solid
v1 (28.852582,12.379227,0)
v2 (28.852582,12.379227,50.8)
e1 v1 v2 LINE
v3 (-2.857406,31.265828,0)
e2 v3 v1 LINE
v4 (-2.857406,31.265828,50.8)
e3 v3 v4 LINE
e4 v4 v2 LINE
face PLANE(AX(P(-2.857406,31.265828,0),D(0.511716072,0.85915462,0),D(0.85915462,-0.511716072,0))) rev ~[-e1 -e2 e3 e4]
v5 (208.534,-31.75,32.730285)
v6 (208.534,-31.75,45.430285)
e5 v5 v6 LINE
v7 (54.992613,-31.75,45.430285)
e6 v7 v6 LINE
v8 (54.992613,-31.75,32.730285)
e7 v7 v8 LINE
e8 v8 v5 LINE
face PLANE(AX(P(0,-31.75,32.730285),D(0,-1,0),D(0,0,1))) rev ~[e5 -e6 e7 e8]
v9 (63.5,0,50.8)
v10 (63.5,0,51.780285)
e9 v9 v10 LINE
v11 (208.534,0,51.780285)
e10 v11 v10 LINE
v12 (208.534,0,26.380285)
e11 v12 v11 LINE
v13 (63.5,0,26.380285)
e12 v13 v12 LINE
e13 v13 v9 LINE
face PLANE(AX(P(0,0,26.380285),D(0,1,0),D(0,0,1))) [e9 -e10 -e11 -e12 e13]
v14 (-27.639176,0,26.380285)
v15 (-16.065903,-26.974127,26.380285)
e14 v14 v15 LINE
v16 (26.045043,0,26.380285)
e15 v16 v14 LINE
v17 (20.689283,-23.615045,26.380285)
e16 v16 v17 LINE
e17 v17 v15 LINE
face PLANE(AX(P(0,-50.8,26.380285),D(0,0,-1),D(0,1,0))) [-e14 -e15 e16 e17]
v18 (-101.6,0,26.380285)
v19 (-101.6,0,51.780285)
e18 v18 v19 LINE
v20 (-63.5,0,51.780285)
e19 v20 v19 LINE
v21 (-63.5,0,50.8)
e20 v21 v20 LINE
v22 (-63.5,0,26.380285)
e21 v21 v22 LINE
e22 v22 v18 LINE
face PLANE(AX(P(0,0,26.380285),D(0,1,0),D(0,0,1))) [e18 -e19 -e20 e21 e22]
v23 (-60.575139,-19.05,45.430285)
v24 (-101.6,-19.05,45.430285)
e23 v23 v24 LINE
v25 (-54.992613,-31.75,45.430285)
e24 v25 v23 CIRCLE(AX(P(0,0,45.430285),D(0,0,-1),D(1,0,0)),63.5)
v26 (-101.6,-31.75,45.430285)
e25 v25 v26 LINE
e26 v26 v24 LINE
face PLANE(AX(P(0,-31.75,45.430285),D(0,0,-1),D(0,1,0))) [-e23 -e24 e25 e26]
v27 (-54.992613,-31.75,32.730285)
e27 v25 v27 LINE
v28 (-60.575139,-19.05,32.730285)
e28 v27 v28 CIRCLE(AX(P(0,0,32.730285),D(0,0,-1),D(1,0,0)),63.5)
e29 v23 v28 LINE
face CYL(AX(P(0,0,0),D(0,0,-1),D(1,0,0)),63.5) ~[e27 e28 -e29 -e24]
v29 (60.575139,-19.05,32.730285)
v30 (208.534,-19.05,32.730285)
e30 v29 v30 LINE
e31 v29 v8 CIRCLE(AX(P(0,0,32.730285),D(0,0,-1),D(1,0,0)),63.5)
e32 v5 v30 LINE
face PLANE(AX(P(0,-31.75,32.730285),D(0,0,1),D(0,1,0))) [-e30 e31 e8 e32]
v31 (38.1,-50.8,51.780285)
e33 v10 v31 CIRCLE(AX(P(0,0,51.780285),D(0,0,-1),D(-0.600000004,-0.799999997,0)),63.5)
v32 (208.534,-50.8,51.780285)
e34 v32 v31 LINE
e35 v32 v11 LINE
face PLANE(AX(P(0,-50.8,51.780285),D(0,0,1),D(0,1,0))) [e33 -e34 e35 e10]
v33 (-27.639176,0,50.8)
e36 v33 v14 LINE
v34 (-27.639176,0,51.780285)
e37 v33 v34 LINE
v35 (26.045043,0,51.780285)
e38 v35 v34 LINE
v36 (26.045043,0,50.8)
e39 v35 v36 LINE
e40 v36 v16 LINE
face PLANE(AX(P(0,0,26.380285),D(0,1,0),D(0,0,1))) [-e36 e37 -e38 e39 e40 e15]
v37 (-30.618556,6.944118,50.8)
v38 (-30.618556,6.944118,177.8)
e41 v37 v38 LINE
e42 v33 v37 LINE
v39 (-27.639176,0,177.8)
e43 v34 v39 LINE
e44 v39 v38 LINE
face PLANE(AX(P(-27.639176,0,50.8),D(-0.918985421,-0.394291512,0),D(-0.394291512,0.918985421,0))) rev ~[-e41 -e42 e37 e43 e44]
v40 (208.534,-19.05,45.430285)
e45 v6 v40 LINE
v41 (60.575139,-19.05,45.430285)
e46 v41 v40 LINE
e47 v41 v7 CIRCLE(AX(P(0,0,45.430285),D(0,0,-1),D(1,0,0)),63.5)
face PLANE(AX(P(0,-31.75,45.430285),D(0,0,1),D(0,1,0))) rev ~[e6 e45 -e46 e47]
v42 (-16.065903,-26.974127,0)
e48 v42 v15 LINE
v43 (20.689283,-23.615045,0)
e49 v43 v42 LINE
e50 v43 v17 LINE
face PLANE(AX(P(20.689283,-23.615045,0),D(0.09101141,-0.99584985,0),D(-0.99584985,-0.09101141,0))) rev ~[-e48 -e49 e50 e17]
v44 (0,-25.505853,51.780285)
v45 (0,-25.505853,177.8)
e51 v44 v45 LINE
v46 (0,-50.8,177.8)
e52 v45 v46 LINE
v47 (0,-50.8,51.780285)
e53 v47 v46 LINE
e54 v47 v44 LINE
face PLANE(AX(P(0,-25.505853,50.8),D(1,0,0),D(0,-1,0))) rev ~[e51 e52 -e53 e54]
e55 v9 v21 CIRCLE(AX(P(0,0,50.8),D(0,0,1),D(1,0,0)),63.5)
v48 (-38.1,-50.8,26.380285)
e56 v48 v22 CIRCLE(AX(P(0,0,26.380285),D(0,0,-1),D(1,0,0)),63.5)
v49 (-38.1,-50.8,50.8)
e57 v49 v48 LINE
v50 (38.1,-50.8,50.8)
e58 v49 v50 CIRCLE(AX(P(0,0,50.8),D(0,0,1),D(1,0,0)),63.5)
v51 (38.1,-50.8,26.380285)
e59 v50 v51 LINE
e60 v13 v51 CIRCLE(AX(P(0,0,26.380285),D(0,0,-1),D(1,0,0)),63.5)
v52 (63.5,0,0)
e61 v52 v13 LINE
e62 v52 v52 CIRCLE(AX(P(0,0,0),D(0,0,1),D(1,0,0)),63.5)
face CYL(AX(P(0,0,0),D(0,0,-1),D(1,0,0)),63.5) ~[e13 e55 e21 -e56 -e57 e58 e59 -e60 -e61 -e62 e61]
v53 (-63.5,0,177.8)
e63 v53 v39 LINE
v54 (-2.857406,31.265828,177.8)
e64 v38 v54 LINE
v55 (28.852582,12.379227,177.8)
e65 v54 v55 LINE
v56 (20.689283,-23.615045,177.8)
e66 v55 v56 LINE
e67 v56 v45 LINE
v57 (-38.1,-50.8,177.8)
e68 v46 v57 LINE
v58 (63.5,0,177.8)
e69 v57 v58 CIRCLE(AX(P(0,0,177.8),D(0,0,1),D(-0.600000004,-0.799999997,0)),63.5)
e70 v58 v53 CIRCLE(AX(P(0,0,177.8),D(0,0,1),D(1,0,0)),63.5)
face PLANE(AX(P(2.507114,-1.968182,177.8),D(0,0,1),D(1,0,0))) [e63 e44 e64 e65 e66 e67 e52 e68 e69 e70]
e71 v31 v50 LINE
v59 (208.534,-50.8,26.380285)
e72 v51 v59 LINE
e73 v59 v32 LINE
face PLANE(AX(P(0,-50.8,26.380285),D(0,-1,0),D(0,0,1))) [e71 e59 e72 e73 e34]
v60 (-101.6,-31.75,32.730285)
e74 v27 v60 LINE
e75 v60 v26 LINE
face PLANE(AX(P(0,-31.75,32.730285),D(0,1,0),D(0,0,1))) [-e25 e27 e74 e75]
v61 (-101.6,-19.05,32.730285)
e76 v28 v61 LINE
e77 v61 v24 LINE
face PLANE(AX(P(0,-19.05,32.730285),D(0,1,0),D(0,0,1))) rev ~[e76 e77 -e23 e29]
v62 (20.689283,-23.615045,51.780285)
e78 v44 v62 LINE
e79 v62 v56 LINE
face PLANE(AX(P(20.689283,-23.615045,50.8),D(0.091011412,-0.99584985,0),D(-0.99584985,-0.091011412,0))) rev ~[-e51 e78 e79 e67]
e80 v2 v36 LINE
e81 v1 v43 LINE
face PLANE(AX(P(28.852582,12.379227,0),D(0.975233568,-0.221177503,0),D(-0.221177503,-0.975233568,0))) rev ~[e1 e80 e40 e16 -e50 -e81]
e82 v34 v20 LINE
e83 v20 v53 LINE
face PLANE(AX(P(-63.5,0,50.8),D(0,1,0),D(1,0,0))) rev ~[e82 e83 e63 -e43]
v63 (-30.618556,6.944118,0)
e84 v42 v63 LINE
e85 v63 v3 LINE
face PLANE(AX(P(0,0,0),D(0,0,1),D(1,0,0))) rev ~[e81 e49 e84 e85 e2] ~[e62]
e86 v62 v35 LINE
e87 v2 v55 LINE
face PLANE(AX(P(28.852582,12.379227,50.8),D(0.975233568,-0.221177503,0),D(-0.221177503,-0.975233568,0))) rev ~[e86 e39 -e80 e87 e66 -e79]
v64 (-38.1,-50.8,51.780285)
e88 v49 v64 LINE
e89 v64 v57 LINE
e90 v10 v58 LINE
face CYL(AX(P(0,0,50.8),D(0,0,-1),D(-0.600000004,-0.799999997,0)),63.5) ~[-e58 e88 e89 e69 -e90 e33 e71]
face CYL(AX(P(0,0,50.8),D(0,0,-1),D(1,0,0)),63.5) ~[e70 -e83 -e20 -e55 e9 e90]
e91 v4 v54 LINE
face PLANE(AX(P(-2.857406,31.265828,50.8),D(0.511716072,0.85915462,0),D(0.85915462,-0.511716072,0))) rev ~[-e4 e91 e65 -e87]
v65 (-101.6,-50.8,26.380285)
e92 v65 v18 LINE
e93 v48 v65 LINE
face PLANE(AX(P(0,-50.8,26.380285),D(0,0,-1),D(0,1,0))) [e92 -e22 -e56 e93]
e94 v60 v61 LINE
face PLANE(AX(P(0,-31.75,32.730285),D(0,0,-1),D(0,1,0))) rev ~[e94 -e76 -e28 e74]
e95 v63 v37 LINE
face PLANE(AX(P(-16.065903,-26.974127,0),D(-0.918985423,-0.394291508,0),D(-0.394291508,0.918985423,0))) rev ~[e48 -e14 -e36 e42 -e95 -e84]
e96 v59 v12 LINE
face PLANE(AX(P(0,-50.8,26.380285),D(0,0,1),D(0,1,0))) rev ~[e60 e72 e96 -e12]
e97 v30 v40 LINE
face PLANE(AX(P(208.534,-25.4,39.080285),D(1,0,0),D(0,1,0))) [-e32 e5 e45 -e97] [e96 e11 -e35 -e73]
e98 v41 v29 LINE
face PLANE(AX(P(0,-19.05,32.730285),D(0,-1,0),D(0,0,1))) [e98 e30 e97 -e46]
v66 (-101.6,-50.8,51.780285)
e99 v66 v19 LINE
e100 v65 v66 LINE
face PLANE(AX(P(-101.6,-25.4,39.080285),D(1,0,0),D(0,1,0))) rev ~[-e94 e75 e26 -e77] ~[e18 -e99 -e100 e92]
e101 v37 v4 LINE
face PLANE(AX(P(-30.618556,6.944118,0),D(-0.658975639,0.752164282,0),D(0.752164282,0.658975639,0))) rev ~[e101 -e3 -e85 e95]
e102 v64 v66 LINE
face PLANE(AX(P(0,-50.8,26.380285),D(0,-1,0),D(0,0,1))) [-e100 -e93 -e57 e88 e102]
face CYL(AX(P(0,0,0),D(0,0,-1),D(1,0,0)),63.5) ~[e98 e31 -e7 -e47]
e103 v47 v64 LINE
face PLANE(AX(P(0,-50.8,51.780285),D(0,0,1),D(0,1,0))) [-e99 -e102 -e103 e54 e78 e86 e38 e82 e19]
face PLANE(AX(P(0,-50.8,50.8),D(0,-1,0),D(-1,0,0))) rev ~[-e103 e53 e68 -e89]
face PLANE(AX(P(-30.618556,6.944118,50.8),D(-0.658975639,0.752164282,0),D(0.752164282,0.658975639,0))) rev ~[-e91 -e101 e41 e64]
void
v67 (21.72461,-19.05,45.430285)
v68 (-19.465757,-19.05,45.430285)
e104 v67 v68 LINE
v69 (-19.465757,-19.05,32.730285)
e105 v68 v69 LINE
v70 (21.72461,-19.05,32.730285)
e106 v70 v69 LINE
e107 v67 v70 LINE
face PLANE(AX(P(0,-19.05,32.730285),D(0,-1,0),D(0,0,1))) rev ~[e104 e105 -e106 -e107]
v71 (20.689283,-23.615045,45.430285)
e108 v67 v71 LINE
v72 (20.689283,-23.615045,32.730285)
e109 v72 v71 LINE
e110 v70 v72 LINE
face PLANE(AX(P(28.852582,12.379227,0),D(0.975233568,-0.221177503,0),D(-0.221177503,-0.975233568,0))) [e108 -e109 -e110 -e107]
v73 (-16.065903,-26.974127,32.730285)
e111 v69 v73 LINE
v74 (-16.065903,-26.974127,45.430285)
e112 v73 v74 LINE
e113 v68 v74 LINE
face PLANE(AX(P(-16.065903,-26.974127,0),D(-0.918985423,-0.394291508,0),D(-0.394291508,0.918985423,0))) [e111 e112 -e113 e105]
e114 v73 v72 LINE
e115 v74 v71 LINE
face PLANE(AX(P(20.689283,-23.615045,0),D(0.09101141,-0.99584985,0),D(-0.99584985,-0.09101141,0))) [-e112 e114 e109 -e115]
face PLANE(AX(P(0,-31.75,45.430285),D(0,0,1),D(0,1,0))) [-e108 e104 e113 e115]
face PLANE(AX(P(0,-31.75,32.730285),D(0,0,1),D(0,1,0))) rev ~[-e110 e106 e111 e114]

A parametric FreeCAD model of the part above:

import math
import FreeCAD as App
import Part
import Sketcher

V = App.Vector
Q = App.Units.Quantity


def add_polygon(sketch, points):
    """Adds a closed chain of lines whose ends are joined by coincident constraints."""
    first, n = sketch.GeometryCount, len(points)
    for a, b in zip(points, points[1:] + points[:1]):
        sketch.addGeometry(Part.LineSegment(App.Vector(*a, 0), App.Vector(*b, 0)), False)
    for i in range(n):
        sketch.addConstraint(Sketcher.Constraint("Coincident", first + i, 2, first + (i + 1) % n, 1))

doc = App.newDocument("Part")
body = doc.addObject("PartDesign::Body", "Body")

# Sketch on XY plane
sketch1 = body.newObject("Sketcher::SketchObject", "Sketch")
sketch1.AttachmentSupport = (doc.getObject("XY_Plane"), [""])
sketch1.MapMode = "FlatFace"
sketch1.addGeometry(Part.Circle(V(0, 0, 0), V(0, 0, 1), 63.5), False)  # 0
add_polygon(sketch1, [(20.689283, -23.615045), (-16.065903, -26.974127), (-30.618556, 6.944118), (-2.857406, 31.265828), (28.852582, 12.379227)])  # lines 1-5
sketch1.addConstraint(Sketcher.Constraint("Coincident", 0, 3, -1, 1))
sketch1.addConstraint(Sketcher.Constraint("Equal", 1, 2))
sketch1.addConstraint(Sketcher.Constraint("Equal", 2, 3))
sketch1.addConstraint(Sketcher.Constraint("Equal", 3, 4))
sketch1.addConstraint(Sketcher.Constraint("Equal", 4, 5))
sketch1.addConstraint(Sketcher.Constraint("Diameter", 0, Q("5 in")))
sketch1.addConstraint(Sketcher.Constraint("DistanceY", 4, 2, 3, 2, 18.886601))
sketch1.addConstraint(Sketcher.Constraint("DistanceX", 5, 2, 4, 2, 8.163299))
sketch1.addConstraint(Sketcher.Constraint("Distance", 1, 36.908361))
sketch1.addConstraint(Sketcher.Constraint("DistanceX", 2, 2, 3, 2, 27.76115))
sketch1.addConstraint(Sketcher.Constraint("DistanceX", 1, 2, -1, 1, 16.065903))
sketch1.addConstraint(Sketcher.Constraint("DistanceY", 1, 2, -1, 1, 26.974127))
pad1 = body.newObject("PartDesign::Pad", "Pad")
pad1.Profile = sketch1
pad1.Length = Q("2 in")

# Sketch on YZ plane
sketch2 = body.newObject("Sketcher::SketchObject", "Sketch001")
sketch2.AttachmentSupport = (doc.getObject("YZ_Plane"), [""])
sketch2.MapMode = "FlatFace"
add_polygon(sketch2, [(-50.8, 51.780285), (-50.8, 26.380285), (0, 26.380285), (0, 51.780285)])  # lines 0-3
add_polygon(sketch2, [(-19.05, 32.730285), (-31.75, 32.730285), (-31.75, 45.430285), (-19.05, 45.430285)])  # lines 4-7
sketch2.addConstraint(Sketcher.Constraint("Vertical", 0))
sketch2.addConstraint(Sketcher.Constraint("Horizontal", 1))
sketch2.addConstraint(Sketcher.Constraint("Vertical", 2))
sketch2.addConstraint(Sketcher.Constraint("Horizontal", 3))
sketch2.addConstraint(Sketcher.Constraint("Horizontal", 4))
sketch2.addConstraint(Sketcher.Constraint("Vertical", 5))
sketch2.addConstraint(Sketcher.Constraint("Horizontal", 6))
sketch2.addConstraint(Sketcher.Constraint("Vertical", 7))
sketch2.addConstraint(Sketcher.Constraint("PointOnObject", 1, 2, -2))
sketch2.addConstraint(Sketcher.Constraint("Equal", 6, 5))
sketch2.addConstraint(Sketcher.Constraint("DistanceX", 1, 1, 1, 2, Q("2 in")))
sketch2.addConstraint(Sketcher.Constraint("DistanceY", 0, 2, 0, 1, Q("1 in")))
sketch2.addConstraint(Sketcher.Constraint("DistanceX", 4, 2, 4, 1, Q("0.5 in")))
sketch2.addConstraint(Sketcher.Constraint("DistanceX", 4, 2, -1, 1, Q("1.25 in")))
sketch2.addConstraint(Sketcher.Constraint("DistanceY", 0, 2, 4, 2, Q("0.25 in")))
sketch2.addConstraint(Sketcher.Constraint("DistanceY", -1, 1, 0, 2, 26.380285))
pad2 = body.newObject("PartDesign::Pad", "Pad001")
pad2.Profile = sketch2
pad2.Length = Q("4 in")
pad2.Reversed = True

# Sketch on YZ plane
sketch3 = body.newObject("Sketcher::SketchObject", "Sketch002")
sketch3.AttachmentSupport = (doc.getObject("YZ_Plane"), [""])
sketch3.MapMode = "FlatFace"
add_polygon(sketch3, [(-50.8, 51.780285), (-50.8, 26.380285), (0, 26.380285), (0, 51.780285)])  # lines 0-3
add_polygon(sketch3, [(-19.05, 32.730285), (-31.75, 32.730285), (-31.75, 45.430285), (-19.05, 45.430285)])  # lines 4-7
sketch3.addConstraint(Sketcher.Constraint("Vertical", 0))
sketch3.addConstraint(Sketcher.Constraint("Horizontal", 1))
sketch3.addConstraint(Sketcher.Constraint("Vertical", 2))
sketch3.addConstraint(Sketcher.Constraint("Horizontal", 3))
sketch3.addConstraint(Sketcher.Constraint("Horizontal", 4))
sketch3.addConstraint(Sketcher.Constraint("Vertical", 5))
sketch3.addConstraint(Sketcher.Constraint("Horizontal", 6))
sketch3.addConstraint(Sketcher.Constraint("Vertical", 7))
sketch3.addConstraint(Sketcher.Constraint("PointOnObject", 1, 2, -2))
sketch3.addConstraint(Sketcher.Constraint("Equal", 6, 5))
sketch3.addConstraint(Sketcher.Constraint("DistanceX", 1, 1, 1, 2, Q("2 in")))
sketch3.addConstraint(Sketcher.Constraint("DistanceY", 0, 2, 0, 1, Q("1 in")))
sketch3.addConstraint(Sketcher.Constraint("DistanceX", 4, 2, 4, 1, Q("0.5 in")))
sketch3.addConstraint(Sketcher.Constraint("DistanceX", 4, 2, -1, 1, Q("1.25 in")))
sketch3.addConstraint(Sketcher.Constraint("DistanceY", 0, 2, 4, 2, Q("0.25 in")))
sketch3.addConstraint(Sketcher.Constraint("DistanceY", -1, 1, 0, 2, 26.380285))
pad3 = body.newObject("PartDesign::Pad", "Pad002")
pad3.Profile = sketch3
pad3.Length = Q("8.21 in")

# Sketch on XY plane
sketch4 = body.newObject("Sketcher::SketchObject", "Sketch003")
sketch4.AttachmentSupport = (doc.getObject("XY_Plane"), [""])
sketch4.MapMode = "FlatFace"
sketch4.AttachmentOffset = App.Placement(V(0, 0, 2 * 25.4), App.Rotation())
sketch4.addGeometry(Part.LineSegment(V(0, -50.8, 0), V(-38.1, -50.8, 0)), False)
sketch4.addGeometry(Part.ArcOfCircle(Part.Circle(V(0, 0, 0), V(0, 0, 1), 63.5), math.radians(-126.869898), math.radians(0)), False)
sketch4.addGeometry(Part.ArcOfCircle(Part.Circle(V(0, 0, 0), V(0, 0, 1), 63.5), math.radians(0), math.radians(180)), False)
sketch4.addGeometry(Part.LineSegment(V(-63.5, 0, 0), V(-27.639176, 0, 0)), False)
sketch4.addGeometry(Part.LineSegment(V(-27.639176, 0, 0), V(-30.618556, 6.944118, 0)), False)
sketch4.addGeometry(Part.LineSegment(V(-30.618556, 6.944118, 0), V(-2.857406, 31.265828, 0)), False)
sketch4.addGeometry(Part.LineSegment(V(-2.857406, 31.265828, 0), V(28.852582, 12.379227, 0)), False)
sketch4.addGeometry(Part.LineSegment(V(28.852582, 12.379227, 0), V(20.689283, -23.615045, 0)), False)
sketch4.addGeometry(Part.LineSegment(V(20.689283, -23.615045, 0), V(0, -25.505853, 0)), False)
sketch4.addGeometry(Part.LineSegment(V(0, -25.505853, 0), V(0, -50.8, 0)), False)
sketch4.addConstraint(Sketcher.Constraint("Coincident", 0, 2, 1, 1))
sketch4.addConstraint(Sketcher.Constraint("Tangent", 1, 2, 2, 1))
sketch4.addConstraint(Sketcher.Constraint("Coincident", 2, 2, 3, 1))
sketch4.addConstraint(Sketcher.Constraint("Coincident", 3, 2, 4, 1))
sketch4.addConstraint(Sketcher.Constraint("Coincident", 4, 2, 5, 1))
sketch4.addConstraint(Sketcher.Constraint("Coincident", 5, 2, 6, 1))
sketch4.addConstraint(Sketcher.Constraint("Coincident", 6, 2, 7, 1))
sketch4.addConstraint(Sketcher.Constraint("Coincident", 7, 2, 8, 1))
sketch4.addConstraint(Sketcher.Constraint("Coincident", 8, 2, 9, 1))
sketch4.addConstraint(Sketcher.Constraint("Coincident", 9, 2, 0, 1))
sketch4.addConstraint(Sketcher.Constraint("Horizontal", 0))
sketch4.addConstraint(Sketcher.Constraint("Horizontal", 3))
sketch4.addConstraint(Sketcher.Constraint("Vertical", 9))
sketch4.addConstraint(Sketcher.Constraint("Coincident", 1, 3, -1, 1))
sketch4.addConstraint(Sketcher.Constraint("Equal", 1, 2))
sketch4.addConstraint(Sketcher.Constraint("PointOnObject", 1, 2, -1))
sketch4.addConstraint(Sketcher.Constraint("PointOnObject", 2, 2, -1))
sketch4.addConstraint(Sketcher.Constraint("PointOnObject", 8, 2, -2))
sketch4.addConstraint(Sketcher.Constraint("Equal", 5, 6))
sketch4.addConstraint(Sketcher.Constraint("Equal", 6, 7))
sketch4.addConstraint(Sketcher.Constraint("Radius", 1, Q("2.5 in")))
sketch4.addConstraint(Sketcher.Constraint("DistanceX", 0, 2, 0, 1, Q("1.5 in")))
sketch4.addConstraint(Sketcher.Constraint("DistanceY", 6, 2, 5, 2, 18.886601))
sketch4.addConstraint(Sketcher.Constraint("DistanceX", 7, 2, 6, 2, 8.163299))
sketch4.addConstraint(Sketcher.Constraint("Distance", 5, 36.90836))
sketch4.addConstraint(Sketcher.Constraint("DistanceX", 3, 1, 3, 2, 35.860824))
sketch4.addConstraint(Sketcher.Constraint("DistanceY", 9, 2, 9, 1, 25.294147))
sketch4.addConstraint(Sketcher.Constraint("DistanceX", 4, 2, 3, 2, 2.97938))
sketch4.addConstraint(Sketcher.Constraint("DistanceY", 1, 3, 4, 2, 6.944118))
sketch4.addConstraint(Sketcher.Constraint("DistanceY", 1, 3, 5, 2, 31.265828))
pad4 = body.newObject("PartDesign::Pad", "Pad003")
pad4.Profile = sketch4
pad4.Length = Q("5 in")

doc.recompute()
